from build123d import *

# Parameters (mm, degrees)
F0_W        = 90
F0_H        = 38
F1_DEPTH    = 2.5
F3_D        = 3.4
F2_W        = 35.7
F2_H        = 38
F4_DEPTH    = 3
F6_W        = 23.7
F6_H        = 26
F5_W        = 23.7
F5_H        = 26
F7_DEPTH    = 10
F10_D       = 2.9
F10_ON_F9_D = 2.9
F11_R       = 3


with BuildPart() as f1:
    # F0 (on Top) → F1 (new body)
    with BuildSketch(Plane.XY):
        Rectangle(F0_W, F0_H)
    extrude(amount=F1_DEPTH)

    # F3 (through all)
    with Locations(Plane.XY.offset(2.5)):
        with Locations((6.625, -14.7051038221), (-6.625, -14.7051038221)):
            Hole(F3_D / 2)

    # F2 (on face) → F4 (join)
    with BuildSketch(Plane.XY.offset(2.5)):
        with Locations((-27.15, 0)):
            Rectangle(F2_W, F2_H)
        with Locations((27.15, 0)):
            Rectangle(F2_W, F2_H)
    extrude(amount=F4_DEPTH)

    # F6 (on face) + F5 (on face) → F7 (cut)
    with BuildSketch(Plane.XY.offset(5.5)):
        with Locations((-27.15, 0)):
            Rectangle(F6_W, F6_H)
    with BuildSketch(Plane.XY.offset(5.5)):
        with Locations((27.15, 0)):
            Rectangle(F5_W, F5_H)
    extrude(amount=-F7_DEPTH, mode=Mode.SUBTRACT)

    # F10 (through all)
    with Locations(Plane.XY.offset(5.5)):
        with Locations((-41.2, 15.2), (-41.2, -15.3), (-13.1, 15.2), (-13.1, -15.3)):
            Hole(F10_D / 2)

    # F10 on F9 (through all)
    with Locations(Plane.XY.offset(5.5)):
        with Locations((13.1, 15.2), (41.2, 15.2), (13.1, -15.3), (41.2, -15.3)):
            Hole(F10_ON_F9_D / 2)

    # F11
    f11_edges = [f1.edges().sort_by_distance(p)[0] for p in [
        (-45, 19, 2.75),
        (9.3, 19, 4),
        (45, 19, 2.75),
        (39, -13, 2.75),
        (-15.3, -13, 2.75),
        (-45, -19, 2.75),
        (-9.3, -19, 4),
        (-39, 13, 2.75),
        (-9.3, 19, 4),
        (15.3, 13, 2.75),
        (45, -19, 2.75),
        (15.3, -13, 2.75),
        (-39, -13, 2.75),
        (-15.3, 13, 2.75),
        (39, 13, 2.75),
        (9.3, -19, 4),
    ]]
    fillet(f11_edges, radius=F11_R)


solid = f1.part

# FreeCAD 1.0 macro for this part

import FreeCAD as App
import Part
import Sketcher

V = App.Vector
Q = App.Units.Quantity


def edges_at(feature, points):
    """Names of the edges that pass closest to the given points."""
    edges = feature.Shape.Edges
    near = lambda p: min(range(len(edges)), key=lambda i: edges[i].distToShape(Part.Vertex(*p))[0])
    return sorted({f"Edge{near(p) + 1}" for p in points})


def add_polygon(sketch, points):
    """Adds a closed chain of lines whose ends are joined by coincident constraints."""
    first, n = sketch.GeometryCount, len(points)
    for a, b in zip(points, points[1:] + points[:1]):
        sketch.addGeometry(Part.LineSegment(App.Vector(*a, 0), App.Vector(*b, 0)), False)
    for i in range(n):
        sketch.addConstraint(Sketcher.Constraint("Coincident", first + i, 2, first + (i + 1) % n, 1))

doc = App.newDocument("Part")
params = doc.addObject("Spreadsheet::Sheet", "Params")
for row, (alias, value) in enumerate([
    ("sketch1_width", "90 mm"),
    ("sketch1_height", "38 mm"),
    ("pad1_length", "2.5 mm"),
    ("sketch2_diameter", "3.4 mm"),
    ("hole_diameter", "3.4 mm"),
    ("sketch3_height", "38 mm"),
    ("sketch3_width", "35.7 mm"),
    ("pad2_length", "3 mm"),
    ("sketch4_height", "26 mm"),
    ("sketch4_width", "23.7 mm"),
    ("pocket1_length", "10 mm"),
    ("sketch5_diameter", "2.9 mm"),
    ("hole2_diameter", "2.9 mm"),
    ("sketch6_diameter", "2.9 mm"),
    ("hole3_diameter", "2.9 mm"),
    ("fillet_radius", "3 mm"),
], start=1):
    params.set(f"A{row}", alias)
    params.set(f"B{row}", "=" + value)
    params.setAlias(f"B{row}", alias)

body = doc.addObject("PartDesign::Body", "Body")

# Sketch on XY plane
sketch1 = body.newObject("Sketcher::SketchObject", "Sketch")
sketch1.AttachmentSupport = (doc.getObject("XY_Plane"), [""])
sketch1.MapMode = "FlatFace"
add_polygon(sketch1, [(-45, 19), (-45, -19), (45, -19), (45, 19)])  # lines 0-3
sketch1.addConstraint([
    Sketcher.Constraint("Vertical", 0),
    Sketcher.Constraint("Horizontal", 1),
    Sketcher.Constraint("Vertical", 2),
    Sketcher.Constraint("Horizontal", 3),
    Sketcher.Constraint("Symmetric", 0, 2, 2, 2, -1, 1),
    Sketcher.Constraint("DistanceX", 1, 1, 1, 2, Q("90 mm")),
    Sketcher.Constraint("DistanceY", 0, 2, 0, 1, Q("38 mm")),
])
sketch1.setExpression("Constraints[9]", "Params.sketch1_width")
sketch1.setExpression("Constraints[10]", "Params.sketch1_height")
pad1 = body.newObject("PartDesign::Pad", "Pad")
pad1.Profile = sketch1
pad1.setExpression("Length", "Params.pad1_length")

# Sketch on XY plane
sketch2 = body.newObject("Sketcher::SketchObject", "Sketch001")
sketch2.AttachmentSupport = (doc.getObject("XY_Plane"), [""])
sketch2.MapMode = "FlatFace"
sketch2.AttachmentOffset = App.Placement(V(0, 0, 2.5), App.Rotation())
sketch2.addGeometry([
    Part.Circle(V(6.6, -14.7, 0), V(0, 0, 1), 1.7),
    Part.Circle(V(-6.6, -14.7, 0), V(0, 0, 1), 1.7),
], False)
sketch2.addConstraint([
    Sketcher.Constraint("Equal", 0, 1),
    Sketcher.Constraint("Symmetric", 0, 3, 1, 3, -2),
    Sketcher.Constraint("Diameter", 0, Q("3.4 mm")),
    Sketcher.Constraint("DistanceX", 1, 3, 0, 3, Q("13.25 mm")),
    Sketcher.Constraint("DistanceY", 0, 3, -1, 1, Q("14.705104 mm")),
])
sketch2.setExpression("Constraints[2]", "Params.sketch2_diameter")
doc.recompute()
hole = body.newObject("PartDesign::Hole", "Hole")
hole.Profile = sketch2
hole.ThreadType = "None"
hole.setExpression("Diameter", "Params.hole_diameter")
hole.DepthType = "ThroughAll"

# Sketch on XY plane
sketch3 = body.newObject("Sketcher::SketchObject", "Sketch002")
sketch3.AttachmentSupport = (doc.getObject("XY_Plane"), [""])
sketch3.MapMode = "FlatFace"
sketch3.AttachmentOffset = App.Placement(V(0, 0, 2.5), App.Rotation())
add_polygon(sketch3, [(-45, 19), (-45, -19), (-9, -19), (-9, 19)])  # lines 0-3
add_polygon(sketch3, [(9, 19), (9, -19), (45, -19), (45, 19)])  # lines 4-7
sketch3.addConstraint([
    Sketcher.Constraint("Vertical", 0),
    Sketcher.Constraint("Horizontal", 1),
    Sketcher.Constraint("Vertical", 2),
    Sketcher.Constraint("Horizontal", 3),
    Sketcher.Constraint("Vertical", 4),
    Sketcher.Constraint("Horizontal", 5),
    Sketcher.Constraint("Vertical", 6),
    Sketcher.Constraint("Horizontal", 7),
    Sketcher.Constraint("Symmetric", 2, 2, 4, 2, -1, 1),
    Sketcher.Constraint("Symmetric", 0, 2, 6, 2, -1, 1),
    Sketcher.Constraint("Horizontal", 1, 2, 4, 2),
    Sketcher.Constraint("DistanceY", 0, 2, 0, 1, Q("38 mm")),
    Sketcher.Constraint("DistanceX", 1, 1, 1, 2, Q("35.7 mm")),
    Sketcher.Constraint("DistanceX", 0, 2, -1, 1, Q("45 mm")),
])
sketch3.setExpression("Constraints[19]", "Params.sketch3_height")
sketch3.setExpression("Constraints[20]", "Params.sketch3_width")
pad2 = body.newObject("PartDesign::Pad", "Pad001")
pad2.Profile = sketch3
pad2.setExpression("Length", "Params.pad2_length")

# Sketch on XY plane
sketch4 = body.newObject("Sketcher::SketchObject", "Sketch003")
sketch4.AttachmentSupport = (doc.getObject("XY_Plane"), [""])
sketch4.MapMode = "FlatFace"
sketch4.AttachmentOffset = App.Placement(V(0, 0, 5.5), App.Rotation())
add_polygon(sketch4, [(-39, 13), (-39, -13), (-15, -13), (-15, 13)])  # lines 0-3
add_polygon(sketch4, [(15, 13), (15, -13), (39, -13), (39, 13)])  # lines 4-7
sketch4.addConstraint([
    Sketcher.Constraint("Vertical", 0),
    Sketcher.Constraint("Horizontal", 1),
    Sketcher.Constraint("Vertical", 2),
    Sketcher.Constraint("Horizontal", 3),
    Sketcher.Constraint("Vertical", 4),
    Sketcher.Constraint("Horizontal", 5),
    Sketcher.Constraint("Vertical", 6),
    Sketcher.Constraint("Horizontal", 7),
    Sketcher.Constraint("Symmetric", 2, 2, 4, 2, -1, 1),
    Sketcher.Constraint("Symmetric", 0, 2, 6, 2, -1, 1),
    Sketcher.Constraint("Horizontal", 1, 2, 4, 2),
    Sketcher.Constraint("DistanceY", 0, 2, 0, 1, Q("26 mm")),
    Sketcher.Constraint("DistanceX", 1, 1, 1, 2, Q("23.7 mm")),
    Sketcher.Constraint("DistanceX", 0, 2, -1, 1, Q("39 mm")),
])
sketch4.setExpression("Constraints[19]", "Params.sketch4_height")
sketch4.setExpression("Constraints[20]", "Params.sketch4_width")
pocket1 = body.newObject("PartDesign::Pocket", "Pocket")
pocket1.Profile = sketch4
pocket1.setExpression("Length", "Params.pocket1_length")

# Sketch on XY plane
sketch5 = body.newObject("Sketcher::SketchObject", "Sketch004")
sketch5.AttachmentSupport = (doc.getObject("XY_Plane"), [""])
sketch5.MapMode = "FlatFace"
sketch5.AttachmentOffset = App.Placement(V(0, 0, 5.5), App.Rotation())
sketch5.addGeometry([
    Part.Circle(V(-41.2, 15.2, 0), V(0, 0, 1), 1.4),
    Part.Circle(V(-41.2, -15.3, 0), V(0, 0, 1), 1.4),
    Part.Circle(V(-13.1, 15.2, 0), V(0, 0, 1), 1.4),
    Part.Circle(V(-13.1, -15.3, 0), V(0, 0, 1), 1.4),
], False)
sketch5.addConstraint([
    Sketcher.Constraint("Equal", 0, 1),
    Sketcher.Constraint("Equal", 1, 2),
    Sketcher.Constraint("Equal", 2, 3),
    Sketcher.Constraint("Horizontal", 0, 3, 2, 3),
    Sketcher.Constraint("Horizontal", 1, 3, 3, 3),
    Sketcher.Constraint("Vertical", 0, 3, 1, 3),
    Sketcher.Constraint("Vertical", 2, 3, 3, 3),
    Sketcher.Constraint("Diameter", 0, Q("2.9 mm")),
    Sketcher.Constraint("DistanceX", 0, 3, -1, 1, Q("41.2 mm")),
    Sketcher.Constraint("DistanceY", -1, 1, 0, 3, Q("15.2 mm")),
    Sketcher.Constraint("DistanceY", 1, 3, -1, 1, Q("15.3 mm")),
    Sketcher.Constraint("DistanceX", 2, 3, -1, 1, Q("13.1 mm")),
])
sketch5.setExpression("Constraints[7]", "Params.sketch5_diameter")
doc.recompute()
hole2 = body.newObject("PartDesign::Hole", "Hole001")
hole2.Profile = sketch5
hole2.ThreadType = "None"
hole2.setExpression("Diameter", "Params.hole2_diameter")
hole2.DepthType = "ThroughAll"

# Sketch on XY plane
sketch6 = body.newObject("Sketcher::SketchObject", "Sketch005")
sketch6.AttachmentSupport = (doc.getObject("XY_Plane"), [""])
sketch6.MapMode = "FlatFace"
sketch6.AttachmentOffset = App.Placement(V(0, 0, 5.5), App.Rotation())
sketch6.addGeometry([
    Part.Circle(V(13.1, 15.2, 0), V(0, 0, 1), 1.4),
    Part.Circle(V(41.2, 15.2, 0), V(0, 0, 1), 1.4),
    Part.Circle(V(13.1, -15.3, 0), V(0, 0, 1), 1.4),
    Part.Circle(V(41.2, -15.3, 0), V(0, 0, 1), 1.4),
], False)
sketch6.addConstraint([
    Sketcher.Constraint("Equal", 0, 1),
    Sketcher.Constraint("Equal", 1, 2),
    Sketcher.Constraint("Equal", 2, 3),
    Sketcher.Constraint("Horizontal", 0, 3, 1, 3),
    Sketcher.Constraint("Horizontal", 2, 3, 3, 3),
    Sketcher.Constraint("Vertical", 0, 3, 2, 3),
    Sketcher.Constraint("Vertical", 1, 3, 3, 3),
    Sketcher.Constraint("Diameter", 0, Q("2.9 mm")),
    Sketcher.Constraint("DistanceX", -1, 1, 0, 3, Q("13.1 mm")),
    Sketcher.Constraint("DistanceY", -1, 1, 0, 3, Q("15.2 mm")),
    Sketcher.Constraint("DistanceX", -1, 1, 1, 3, Q("41.2 mm")),
    Sketcher.Constraint("DistanceY", 2, 3, -1, 1, Q("15.3 mm")),
])
sketch6.setExpression("Constraints[7]", "Params.sketch6_diameter")
doc.recompute()
hole3 = body.newObject("PartDesign::Hole", "Hole002")
hole3.Profile = sketch6
hole3.ThreadType = "None"
hole3.setExpression("Diameter", "Params.hole3_diameter")
hole3.DepthType = "ThroughAll"
doc.recompute()

fillet = body.newObject("PartDesign::Fillet", "Fillet")
fillet.Base = (hole3, edges_at(hole3, [
    (-45, 19, 2.75),
    (9.3, 19, 4),
    (45, 19, 2.75),
    (39, -13, 2.75),
    (-15.3, -13, 2.75),
    (-45, -19, 2.75),
    (-9.3, -19, 4),
    (-39, 13, 2.75),
    (-9.3, 19, 4),
    (15.3, 13, 2.75),
    (45, -19, 2.75),
    (15.3, -13, 2.75),
    (-39, -13, 2.75),
    (-15.3, 13, 2.75),
    (39, 13, 2.75),
    (9.3, -19, 4),
]))
fillet.setExpression("Radius", "Params.fillet_radius")

doc.recompute()
